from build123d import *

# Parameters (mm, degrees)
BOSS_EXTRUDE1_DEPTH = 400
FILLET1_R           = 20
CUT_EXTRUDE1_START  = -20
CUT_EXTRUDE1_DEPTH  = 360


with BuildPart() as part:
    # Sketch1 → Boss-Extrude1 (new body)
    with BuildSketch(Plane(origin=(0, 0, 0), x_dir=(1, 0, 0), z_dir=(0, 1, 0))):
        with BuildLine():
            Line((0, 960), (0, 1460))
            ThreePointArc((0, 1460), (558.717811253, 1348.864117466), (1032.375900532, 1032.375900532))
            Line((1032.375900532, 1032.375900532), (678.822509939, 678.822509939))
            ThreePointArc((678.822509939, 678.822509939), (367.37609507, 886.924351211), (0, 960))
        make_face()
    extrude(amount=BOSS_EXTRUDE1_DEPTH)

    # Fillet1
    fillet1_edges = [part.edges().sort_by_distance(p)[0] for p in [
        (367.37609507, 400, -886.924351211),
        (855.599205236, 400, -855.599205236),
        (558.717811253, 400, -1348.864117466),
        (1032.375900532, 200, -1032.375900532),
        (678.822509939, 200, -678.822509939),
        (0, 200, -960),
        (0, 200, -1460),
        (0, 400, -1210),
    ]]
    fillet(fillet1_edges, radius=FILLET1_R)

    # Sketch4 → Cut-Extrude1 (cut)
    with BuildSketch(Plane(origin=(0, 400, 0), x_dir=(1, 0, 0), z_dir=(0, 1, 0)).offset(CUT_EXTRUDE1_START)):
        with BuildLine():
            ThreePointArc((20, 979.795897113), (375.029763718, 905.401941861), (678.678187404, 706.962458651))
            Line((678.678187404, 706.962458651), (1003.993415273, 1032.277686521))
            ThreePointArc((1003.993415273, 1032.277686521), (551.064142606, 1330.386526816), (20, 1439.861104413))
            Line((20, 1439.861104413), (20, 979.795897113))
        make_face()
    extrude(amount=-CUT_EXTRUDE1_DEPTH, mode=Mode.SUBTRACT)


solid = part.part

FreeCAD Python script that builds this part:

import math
import FreeCAD as App
import Part
import Sketcher
from FreeCAD import Vector
Q = App.Units.Quantity


def edges_at(feature, points):
    """Names of the edges that pass closest to the given points."""
    edges = feature.Shape.Edges
    near = lambda p: min(range(len(edges)), key=lambda i: edges[i].distToShape(Part.Vertex(*p))[0])
    return sorted({f"Edge{near(p) + 1}" for p in points})

doc = App.newDocument("Part")
body = doc.addObject("PartDesign::Body", "Body")

sketch1 = body.newObject("Sketcher::SketchObject", "Sketch")
sketch1.AttachmentSupport = (doc.getObject("XZ_Plane"), [""])
sketch1.MapMode = "FlatFace"
sketch1.addGeometry(Part.LineSegment(Vector(0, -1460, 0), Vector(0, -960, 0)), False)
sketch1.addGeometry(Part.ArcOfCircle(Part.Circle(Vector(0, 0, 0), Vector(0, 0, 1), 960), math.radians(-90), math.radians(-45)), False)
sketch1.addGeometry(Part.LineSegment(Vector(679, -679, 0), Vector(1032, -1032, 0)), False)
sketch1.addGeometry(Part.ArcOfCircle(Part.Circle(Vector(0, 0, 0), Vector(0, 0, 1), 1460), math.radians(-90), math.radians(-45)), False)
sketch1.addConstraint(Sketcher.Constraint("Coincident", 0, 2, 1, 1))
sketch1.addConstraint(Sketcher.Constraint("Coincident", 1, 2, 2, 1))
sketch1.addConstraint(Sketcher.Constraint("Coincident", 2, 2, 3, 2))
sketch1.addConstraint(Sketcher.Constraint("Coincident", 3, 1, 0, 1))
sketch1.addConstraint(Sketcher.Constraint("Vertical", 0))
sketch1.addConstraint(Sketcher.Constraint("Coincident", 1, 3, -1, 1))
sketch1.addConstraint(Sketcher.Constraint("Coincident", 3, 3, -1, 1))
sketch1.addConstraint(Sketcher.Constraint("PointOnObject", 0, 2, -2))
sketch1.addConstraint(Sketcher.Constraint("Radius", 1, Q("960 mm")))
sketch1.addConstraint(Sketcher.Constraint("Radius", 3, Q("1460 mm")))
sketch1.addConstraint(Sketcher.Constraint("Angle", 2, Q("-45 deg")))
sketch1.addConstraint(Sketcher.Constraint("DistanceX", -1, 1, 2, 2, Q("1032.375901 mm")))
pad1 = body.newObject("PartDesign::Pad", "Pad")
pad1.Profile = sketch1
pad1.Length = 400
pad1.Reversed = True
doc.recompute()

fillet = body.newObject("PartDesign::Fillet", "Fillet")
fillet.Base = (pad1, edges_at(pad1, [
    (367.376, 400, -886.924),
    (855.599, 400, -855.599),
    (558.718, 400, -1348.864),
    (1032.376, 200, -1032.376),
    (678.823, 200, -678.823),
    (0, 200, -960),
    (0, 200, -1460),
    (0, 400, -1210),
]))
fillet.Radius = 20

sketch2 = body.newObject("Sketcher::SketchObject", "Sketch001")
sketch2.AttachmentSupport = (doc.getObject("XZ_Plane"), [""])
sketch2.MapMode = "FlatFace"
sketch2.AttachmentOffset = App.Placement(Vector(0, 0, -380), App.Rotation())
sketch2.addGeometry(Part.ArcOfCircle(Part.Circle(Vector(0, 0, 0), Vector(0, 0, 1), 980), math.radians(-89), math.radians(-46)), False)
sketch2.addGeometry(Part.LineSegment(Vector(679, -707, 0), Vector(1004, -1032, 0)), False)
sketch2.addGeometry(Part.ArcOfCircle(Part.Circle(Vector(0, 0, 0), Vector(0, 0, 1), 1440), math.radians(-89), math.radians(-46)), False)
sketch2.addGeometry(Part.LineSegment(Vector(20, -1440, 0), Vector(20, -980, 0)), False)
sketch2.addConstraint(Sketcher.Constraint("Coincident", 0, 2, 1, 1))
sketch2.addConstraint(Sketcher.Constraint("Coincident", 1, 2, 2, 2))
sketch2.addConstraint(Sketcher.Constraint("Coincident", 2, 1, 3, 1))
sketch2.addConstraint(Sketcher.Constraint("Coincident", 3, 2, 0, 1))
sketch2.addConstraint(Sketcher.Constraint("Vertical", 3))
sketch2.addConstraint(Sketcher.Constraint("Coincident", 0, 3, -1, 1))
sketch2.addConstraint(Sketcher.Constraint("Coincident", 2, 3, -1, 1))
sketch2.addConstraint(Sketcher.Constraint("Radius", 0, Q("980 mm")))
sketch2.addConstraint(Sketcher.Constraint("Radius", 2, Q("1440 mm")))
sketch2.addConstraint(Sketcher.Constraint("Angle", 1, Q("-45 deg")))
sketch2.addConstraint(Sketcher.Constraint("DistanceX", -1, 1, 3, 2, Q("20 mm")))
sketch2.addConstraint(Sketcher.Constraint("DistanceY", 1, 2, 3, 2, Q("52.481789 mm")))
pocket1 = body.newObject("PartDesign::Pocket", "Pocket")
pocket1.Profile = sketch2
pocket1.Length = 360
pocket1.Reversed = True

doc.recompute()
